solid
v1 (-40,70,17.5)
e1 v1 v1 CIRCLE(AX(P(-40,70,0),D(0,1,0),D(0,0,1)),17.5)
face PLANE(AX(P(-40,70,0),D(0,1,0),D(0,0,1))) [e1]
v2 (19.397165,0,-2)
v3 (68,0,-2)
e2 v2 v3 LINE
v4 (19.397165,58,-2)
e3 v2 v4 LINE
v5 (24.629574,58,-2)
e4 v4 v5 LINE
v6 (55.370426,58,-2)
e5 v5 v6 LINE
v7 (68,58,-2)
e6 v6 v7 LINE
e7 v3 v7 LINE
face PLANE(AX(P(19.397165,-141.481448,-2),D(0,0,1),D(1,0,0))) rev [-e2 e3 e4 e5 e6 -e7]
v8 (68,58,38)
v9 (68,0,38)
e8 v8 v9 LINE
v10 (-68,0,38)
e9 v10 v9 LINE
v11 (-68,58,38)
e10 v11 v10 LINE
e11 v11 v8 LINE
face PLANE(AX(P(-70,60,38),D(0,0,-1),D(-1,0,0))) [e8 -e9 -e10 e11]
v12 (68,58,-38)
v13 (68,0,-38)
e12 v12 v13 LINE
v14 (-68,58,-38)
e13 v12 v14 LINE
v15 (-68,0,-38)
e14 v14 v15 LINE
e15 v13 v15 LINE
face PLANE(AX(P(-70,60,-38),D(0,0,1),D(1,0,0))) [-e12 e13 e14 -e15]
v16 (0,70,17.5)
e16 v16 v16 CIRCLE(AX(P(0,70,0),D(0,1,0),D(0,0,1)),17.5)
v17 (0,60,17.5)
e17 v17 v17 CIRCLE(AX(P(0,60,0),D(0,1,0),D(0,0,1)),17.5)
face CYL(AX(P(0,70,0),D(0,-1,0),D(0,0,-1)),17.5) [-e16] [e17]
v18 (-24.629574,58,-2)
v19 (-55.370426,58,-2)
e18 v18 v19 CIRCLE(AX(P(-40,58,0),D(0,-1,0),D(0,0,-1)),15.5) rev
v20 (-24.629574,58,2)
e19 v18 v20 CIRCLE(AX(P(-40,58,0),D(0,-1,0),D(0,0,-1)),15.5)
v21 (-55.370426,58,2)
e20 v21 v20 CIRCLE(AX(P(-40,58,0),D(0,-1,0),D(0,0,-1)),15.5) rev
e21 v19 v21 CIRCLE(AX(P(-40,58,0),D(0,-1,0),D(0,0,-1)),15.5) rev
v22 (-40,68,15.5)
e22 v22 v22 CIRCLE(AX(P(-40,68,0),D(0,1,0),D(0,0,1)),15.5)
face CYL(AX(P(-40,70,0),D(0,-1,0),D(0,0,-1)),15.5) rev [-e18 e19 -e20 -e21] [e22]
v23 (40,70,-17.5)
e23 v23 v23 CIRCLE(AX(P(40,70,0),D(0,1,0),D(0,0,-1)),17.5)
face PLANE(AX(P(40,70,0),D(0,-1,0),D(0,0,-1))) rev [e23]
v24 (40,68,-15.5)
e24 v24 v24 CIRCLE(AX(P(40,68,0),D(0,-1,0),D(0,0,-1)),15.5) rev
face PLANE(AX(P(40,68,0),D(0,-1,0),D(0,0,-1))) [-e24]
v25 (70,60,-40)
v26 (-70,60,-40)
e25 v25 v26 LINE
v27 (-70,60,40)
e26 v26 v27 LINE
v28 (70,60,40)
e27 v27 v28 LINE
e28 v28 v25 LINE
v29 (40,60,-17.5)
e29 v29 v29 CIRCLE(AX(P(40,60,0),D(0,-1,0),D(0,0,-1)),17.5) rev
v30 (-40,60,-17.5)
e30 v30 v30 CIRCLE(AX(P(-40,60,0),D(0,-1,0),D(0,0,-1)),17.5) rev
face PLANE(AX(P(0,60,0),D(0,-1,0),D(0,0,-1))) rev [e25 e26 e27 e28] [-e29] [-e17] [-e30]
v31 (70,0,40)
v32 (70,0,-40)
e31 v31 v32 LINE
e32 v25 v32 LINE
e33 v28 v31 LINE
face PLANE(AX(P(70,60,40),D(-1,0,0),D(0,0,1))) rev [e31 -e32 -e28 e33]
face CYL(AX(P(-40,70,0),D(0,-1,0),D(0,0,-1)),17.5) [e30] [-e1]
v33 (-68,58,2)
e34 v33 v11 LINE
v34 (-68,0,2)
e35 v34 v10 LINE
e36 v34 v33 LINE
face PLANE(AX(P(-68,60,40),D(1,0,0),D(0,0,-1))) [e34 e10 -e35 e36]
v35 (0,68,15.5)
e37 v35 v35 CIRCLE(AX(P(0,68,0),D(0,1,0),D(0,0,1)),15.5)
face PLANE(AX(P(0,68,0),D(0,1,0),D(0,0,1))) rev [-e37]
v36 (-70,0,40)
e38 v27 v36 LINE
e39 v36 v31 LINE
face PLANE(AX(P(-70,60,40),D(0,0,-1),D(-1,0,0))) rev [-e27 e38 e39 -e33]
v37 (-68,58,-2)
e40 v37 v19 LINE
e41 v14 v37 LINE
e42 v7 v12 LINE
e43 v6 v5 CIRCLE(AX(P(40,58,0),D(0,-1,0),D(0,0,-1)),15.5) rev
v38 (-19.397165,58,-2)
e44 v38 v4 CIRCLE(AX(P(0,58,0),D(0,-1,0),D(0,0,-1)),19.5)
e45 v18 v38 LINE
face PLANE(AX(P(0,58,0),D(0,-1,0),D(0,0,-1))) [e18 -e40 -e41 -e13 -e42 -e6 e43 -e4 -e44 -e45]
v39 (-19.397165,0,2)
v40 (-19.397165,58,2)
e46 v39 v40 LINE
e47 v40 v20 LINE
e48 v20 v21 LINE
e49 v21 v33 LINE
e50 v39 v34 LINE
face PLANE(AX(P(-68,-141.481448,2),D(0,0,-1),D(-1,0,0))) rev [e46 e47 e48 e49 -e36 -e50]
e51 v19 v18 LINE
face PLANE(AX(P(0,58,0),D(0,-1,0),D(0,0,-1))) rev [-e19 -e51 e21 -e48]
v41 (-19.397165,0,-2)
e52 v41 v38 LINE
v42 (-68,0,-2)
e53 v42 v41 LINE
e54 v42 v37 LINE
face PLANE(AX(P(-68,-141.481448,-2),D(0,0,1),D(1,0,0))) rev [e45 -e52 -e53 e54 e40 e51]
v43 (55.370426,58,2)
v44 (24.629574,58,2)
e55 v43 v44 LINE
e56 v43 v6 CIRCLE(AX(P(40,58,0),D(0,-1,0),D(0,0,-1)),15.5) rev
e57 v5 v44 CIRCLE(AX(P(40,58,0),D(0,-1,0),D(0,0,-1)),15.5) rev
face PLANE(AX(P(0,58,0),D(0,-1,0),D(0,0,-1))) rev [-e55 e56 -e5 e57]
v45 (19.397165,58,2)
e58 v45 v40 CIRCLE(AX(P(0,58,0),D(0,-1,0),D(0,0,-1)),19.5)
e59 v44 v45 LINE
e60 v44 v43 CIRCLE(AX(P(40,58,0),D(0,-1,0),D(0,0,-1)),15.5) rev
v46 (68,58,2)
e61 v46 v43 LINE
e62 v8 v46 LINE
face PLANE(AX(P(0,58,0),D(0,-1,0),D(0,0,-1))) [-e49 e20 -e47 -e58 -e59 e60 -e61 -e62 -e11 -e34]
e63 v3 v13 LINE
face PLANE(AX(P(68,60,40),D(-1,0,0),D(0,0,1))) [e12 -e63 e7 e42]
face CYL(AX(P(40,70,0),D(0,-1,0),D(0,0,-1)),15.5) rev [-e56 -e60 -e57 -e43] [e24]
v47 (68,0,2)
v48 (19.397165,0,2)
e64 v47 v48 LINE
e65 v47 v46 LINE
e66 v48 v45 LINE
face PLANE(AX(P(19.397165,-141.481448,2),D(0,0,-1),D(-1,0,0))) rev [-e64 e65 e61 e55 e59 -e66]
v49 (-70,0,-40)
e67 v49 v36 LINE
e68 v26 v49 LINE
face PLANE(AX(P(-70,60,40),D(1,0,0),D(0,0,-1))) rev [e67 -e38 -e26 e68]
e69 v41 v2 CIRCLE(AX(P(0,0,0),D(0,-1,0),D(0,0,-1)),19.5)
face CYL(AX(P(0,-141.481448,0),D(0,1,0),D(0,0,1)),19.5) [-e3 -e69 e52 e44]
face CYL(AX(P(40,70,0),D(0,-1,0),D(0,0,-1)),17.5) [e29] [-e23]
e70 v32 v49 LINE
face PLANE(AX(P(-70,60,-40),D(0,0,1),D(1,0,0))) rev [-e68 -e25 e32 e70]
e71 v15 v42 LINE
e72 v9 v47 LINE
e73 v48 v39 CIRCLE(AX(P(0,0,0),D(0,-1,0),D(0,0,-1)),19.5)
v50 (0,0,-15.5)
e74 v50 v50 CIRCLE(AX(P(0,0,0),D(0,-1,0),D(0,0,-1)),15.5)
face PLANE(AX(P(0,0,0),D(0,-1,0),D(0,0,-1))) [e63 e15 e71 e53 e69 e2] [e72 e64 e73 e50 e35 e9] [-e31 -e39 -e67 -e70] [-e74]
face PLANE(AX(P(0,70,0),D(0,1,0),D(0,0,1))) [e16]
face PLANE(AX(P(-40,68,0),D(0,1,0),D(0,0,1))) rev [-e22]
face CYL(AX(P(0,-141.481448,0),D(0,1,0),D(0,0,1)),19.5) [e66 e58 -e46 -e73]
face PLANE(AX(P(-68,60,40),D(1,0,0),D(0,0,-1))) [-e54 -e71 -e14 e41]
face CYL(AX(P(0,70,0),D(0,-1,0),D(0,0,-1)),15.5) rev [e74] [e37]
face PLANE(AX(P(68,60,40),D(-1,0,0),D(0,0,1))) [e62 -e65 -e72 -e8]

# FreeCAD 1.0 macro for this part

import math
import FreeCAD as App
import Part
import Sketcher

V = App.Vector
Q = App.Units.Quantity


def faces_at(feature, points):
    """Names of the faces that lie closest to the given points."""
    faces = feature.Shape.Faces
    near = lambda p: min(range(len(faces)), key=lambda i: faces[i].distToShape(Part.Vertex(*p))[0])
    return sorted({f"Face{near(p) + 1}" for p in points})

doc = App.newDocument("Part")
body = doc.addObject("PartDesign::Body", "Body")

# Sketch on XZ plane
sketch1 = body.newObject("Sketcher::SketchObject", "Sketch")
sketch1.AttachmentSupport = (doc.getObject("XZ_Plane"), [""])
sketch1.MapMode = "FlatFace"
sketch1.addGeometry([
    Part.LineSegment(V(-70, -40, 0), V(-70, 40, 0)),
    Part.LineSegment(V(-70, 40, 0), V(70, 40, 0)),
    Part.LineSegment(V(70, 40, 0), V(70, -40, 0)),
    Part.LineSegment(V(70, -40, 0), V(-70, -40, 0)),
], False)
sketch1.addConstraint([
    Sketcher.Constraint("Coincident", 0, 2, 1, 1),
    Sketcher.Constraint("Coincident", 1, 2, 2, 1),
    Sketcher.Constraint("Coincident", 2, 2, 3, 1),
    Sketcher.Constraint("Coincident", 3, 2, 0, 1),
    Sketcher.Constraint("Vertical", 0),
    Sketcher.Constraint("Horizontal", 1),
    Sketcher.Constraint("Vertical", 2),
    Sketcher.Constraint("Horizontal", 3),
    Sketcher.Constraint("Symmetric", 0, 2, 2, 2, -1, 1),
    Sketcher.Constraint("DistanceX", 1, 1, 1, 2, Q("140 mm")),
    Sketcher.Constraint("DistanceY", 0, 1, 0, 2, Q("80 mm")),
])
pad1 = body.newObject("PartDesign::Pad", "Pad")
pad1.Profile = sketch1
pad1.Length = 60
pad1.Reversed = True

# Sketch on XZ plane
sketch2 = body.newObject("Sketcher::SketchObject", "Sketch001")
sketch2.AttachmentSupport = (doc.getObject("XZ_Plane"), [""])
sketch2.MapMode = "FlatFace"
sketch2.AttachmentOffset = App.Placement(V(0, 0, -60), App.Rotation())
sketch2.addGeometry([
    Part.Circle(V(0, 0, 0), V(0, 0, 1), 17.5),
    Part.Circle(V(-40, 0, 0), V(0, 0, 1), 17.5),
    Part.Circle(V(40, 0, 0), V(0, 0, 1), 17.5),
], False)
sketch2.addConstraint([
    Sketcher.Constraint("Coincident", 0, 3, -1, 1),
    Sketcher.Constraint("Equal", 0, 1),
    Sketcher.Constraint("Equal", 1, 2),
    Sketcher.Constraint("Symmetric", 1, 3, 2, 3, -1, 1),
    Sketcher.Constraint("PointOnObject", 1, 3, -1),
    Sketcher.Constraint("Diameter", 0, Q("35 mm")),
    Sketcher.Constraint("DistanceX", 1, 3, -1, 1, Q("40 mm")),
])
pad2 = body.newObject("PartDesign::Pad", "Pad001")
pad2.Profile = sketch2
pad2.Length = 10
pad2.Reversed = True
doc.recompute()

thickness = body.newObject("PartDesign::Thickness", "Thickness")
thickness.Base = (pad2, faces_at(pad2, [(0, 0, 0)]))
thickness.Value = 2
thickness.Reversed = True
thickness.Join = "Intersection"

# Sketch on XZ plane
sketch3 = body.newObject("Sketcher::SketchObject", "Sketch002")
sketch3.AttachmentSupport = (doc.getObject("XZ_Plane"), [""])
sketch3.MapMode = "FlatFace"
sketch3.AttachmentOffset = App.Placement(V(0, 0, -58), App.Rotation())
sketch3.addGeometry([
    Part.LineSegment(V(-68, -2, 0), V(-19.397165, -2, 0)),  # 0
    Part.ArcOfCircle(Part.Circle(V(0, 0, 0), V(0, 0, 1), 19.5), math.radians(-174.113158), math.radians(-5.886842)),  # 1
    Part.LineSegment(V(19.397165, -2, 0), V(68, -2, 0)),  # 2
    Part.LineSegment(V(68, -2, 0), V(68, 2, 0)),  # 3
    Part.LineSegment(V(68, 2, 0), V(19.397165, 2, 0)),  # 4
    Part.ArcOfCircle(Part.Circle(V(0, 0, 0), V(0, 0, 1), 19.5), math.radians(5.886842), math.radians(174.113158)),  # 5
    Part.LineSegment(V(-19.397165, 2, 0), V(-68, 2, 0)),  # 6
    Part.LineSegment(V(-68, 2, 0), V(-68, -2, 0)),  # 7
    Part.Circle(V(0, 0, 0), V(0, 0, 1), 15.5),  # 8
], False)
sketch3.addConstraint([
    Sketcher.Constraint("Coincident", 0, 2, 1, 1),
    Sketcher.Constraint("Coincident", 1, 2, 2, 1),
    Sketcher.Constraint("Coincident", 2, 2, 3, 1),
    Sketcher.Constraint("Coincident", 3, 2, 4, 1),
    Sketcher.Constraint("Coincident", 4, 2, 5, 1),
    Sketcher.Constraint("Coincident", 5, 2, 6, 1),
    Sketcher.Constraint("Coincident", 6, 2, 7, 1),
    Sketcher.Constraint("Coincident", 7, 2, 0, 1),
    Sketcher.Constraint("Horizontal", 0),
    Sketcher.Constraint("Horizontal", 2),
    Sketcher.Constraint("Vertical", 3),
    Sketcher.Constraint("Horizontal", 4),
    Sketcher.Constraint("Horizontal", 6),
    Sketcher.Constraint("Vertical", 7),
    Sketcher.Constraint("Coincident", 1, 3, -1, 1),
    Sketcher.Constraint("Coincident", 5, 3, -1, 1),
    Sketcher.Constraint("Coincident", 8, 3, -1, 1),
    Sketcher.Constraint("Equal", 1, 5),
    Sketcher.Constraint("Symmetric", 2, 2, 6, 2, -1, 1),
    Sketcher.Constraint("Horizontal", 0, 2, 1, 2),
    Sketcher.Constraint("Horizontal", 4, 2, 5, 2),
    Sketcher.Constraint("Diameter", 8, Q("31 mm")),
    Sketcher.Constraint("Radius", 1, Q("19.5 mm")),
    Sketcher.Constraint("DistanceY", 3, 1, 3, 2, Q("4 mm")),
    Sketcher.Constraint("DistanceX", -1, 1, 2, 2, Q("68 mm")),
])
pad3 = body.newObject("PartDesign::Pad", "Pad002")
pad3.Profile = sketch3
pad3.Length = 58

doc.recompute()
